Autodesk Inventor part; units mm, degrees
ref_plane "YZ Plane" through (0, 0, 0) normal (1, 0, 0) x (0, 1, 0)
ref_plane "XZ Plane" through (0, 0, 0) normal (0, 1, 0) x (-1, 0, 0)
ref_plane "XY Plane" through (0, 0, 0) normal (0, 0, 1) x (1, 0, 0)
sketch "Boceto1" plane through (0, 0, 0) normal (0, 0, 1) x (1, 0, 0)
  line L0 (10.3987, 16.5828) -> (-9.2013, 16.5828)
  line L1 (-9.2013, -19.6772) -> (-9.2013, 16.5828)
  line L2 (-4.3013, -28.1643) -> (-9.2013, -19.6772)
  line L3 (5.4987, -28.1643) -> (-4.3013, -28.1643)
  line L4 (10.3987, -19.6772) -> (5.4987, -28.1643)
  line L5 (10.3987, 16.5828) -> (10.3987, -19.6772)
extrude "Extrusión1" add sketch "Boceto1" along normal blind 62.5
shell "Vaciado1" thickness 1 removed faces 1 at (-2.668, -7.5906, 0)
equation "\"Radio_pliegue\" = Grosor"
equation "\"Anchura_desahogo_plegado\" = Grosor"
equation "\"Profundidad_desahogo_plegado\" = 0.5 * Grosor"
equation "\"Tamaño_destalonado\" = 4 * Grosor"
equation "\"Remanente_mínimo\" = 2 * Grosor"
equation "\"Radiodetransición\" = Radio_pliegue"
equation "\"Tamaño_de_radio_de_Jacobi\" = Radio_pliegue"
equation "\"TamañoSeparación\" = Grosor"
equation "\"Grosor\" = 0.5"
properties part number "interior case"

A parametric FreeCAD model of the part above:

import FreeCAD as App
import Part
import Sketcher
Q = App.Units.Quantity


def faces_at(feature, points):
    """Names of the faces that lie closest to the given points."""
    faces = feature.Shape.Faces
    near = lambda p: min(range(len(faces)), key=lambda i: faces[i].distToShape(Part.Vertex(*p))[0])
    return sorted({f"Face{near(p) + 1}" for p in points})


def add_polygon(sketch, points):
    """Adds a closed chain of lines whose ends are joined by coincident constraints."""
    first, n = sketch.GeometryCount, len(points)
    for a, b in zip(points, points[1:] + points[:1]):
        sketch.addGeometry(Part.LineSegment(App.Vector(*a, 0), App.Vector(*b, 0)), False)
    for i in range(n):
        sketch.addConstraint(Sketcher.Constraint("Coincident", first + i, 2, first + (i + 1) % n, 1))

doc = App.newDocument("Part")
body = doc.addObject("PartDesign::Body", "Body")

# Sketch on XY plane
sketch1 = body.newObject("Sketcher::SketchObject", "Sketch")
sketch1.AttachmentSupport = (doc.getObject("XY_Plane"), [""])
sketch1.MapMode = "FlatFace"
add_polygon(sketch1, [(10, -20), (10, 17), (-9, 17), (-9, -20), (-4, -28), (5, -28)])  # lines 0-5
sketch1.addConstraint([
    Sketcher.Constraint("Vertical", 0),
    Sketcher.Constraint("Horizontal", 1),
    Sketcher.Constraint("Vertical", 2),
    Sketcher.Constraint("Horizontal", 4),
    Sketcher.Constraint("Horizontal", 2, 2, 5, 2),
    Sketcher.Constraint("Equal", 3, 5),
    Sketcher.Constraint("Angle", 3, Q("-60.0001 deg")),
    Sketcher.Constraint("DistanceX", 1, 2, 1, 1, 19.6),
    Sketcher.Constraint("DistanceX", 4, 1, 4, 2, 9.8),
    Sketcher.Constraint("DistanceY", 0, 1, 0, 2, 36.26),
    Sketcher.Constraint("DistanceX", -1, 1, 0, 2, 10.3987),
    Sketcher.Constraint("DistanceY", -1, 1, 0, 2, 16.5828),
])
pad1 = body.newObject("PartDesign::Pad", "Pad")
pad1.Profile = sketch1
pad1.Length = 62.5
doc.recompute()

thickness = body.newObject("PartDesign::Thickness", "Thickness")
thickness.Base = (pad1, faces_at(pad1, [(-2.668, -7.591, 0)]))
thickness.Value = 1
thickness.Reversed = True
thickness.Join = "Intersection"

doc.recompute()
